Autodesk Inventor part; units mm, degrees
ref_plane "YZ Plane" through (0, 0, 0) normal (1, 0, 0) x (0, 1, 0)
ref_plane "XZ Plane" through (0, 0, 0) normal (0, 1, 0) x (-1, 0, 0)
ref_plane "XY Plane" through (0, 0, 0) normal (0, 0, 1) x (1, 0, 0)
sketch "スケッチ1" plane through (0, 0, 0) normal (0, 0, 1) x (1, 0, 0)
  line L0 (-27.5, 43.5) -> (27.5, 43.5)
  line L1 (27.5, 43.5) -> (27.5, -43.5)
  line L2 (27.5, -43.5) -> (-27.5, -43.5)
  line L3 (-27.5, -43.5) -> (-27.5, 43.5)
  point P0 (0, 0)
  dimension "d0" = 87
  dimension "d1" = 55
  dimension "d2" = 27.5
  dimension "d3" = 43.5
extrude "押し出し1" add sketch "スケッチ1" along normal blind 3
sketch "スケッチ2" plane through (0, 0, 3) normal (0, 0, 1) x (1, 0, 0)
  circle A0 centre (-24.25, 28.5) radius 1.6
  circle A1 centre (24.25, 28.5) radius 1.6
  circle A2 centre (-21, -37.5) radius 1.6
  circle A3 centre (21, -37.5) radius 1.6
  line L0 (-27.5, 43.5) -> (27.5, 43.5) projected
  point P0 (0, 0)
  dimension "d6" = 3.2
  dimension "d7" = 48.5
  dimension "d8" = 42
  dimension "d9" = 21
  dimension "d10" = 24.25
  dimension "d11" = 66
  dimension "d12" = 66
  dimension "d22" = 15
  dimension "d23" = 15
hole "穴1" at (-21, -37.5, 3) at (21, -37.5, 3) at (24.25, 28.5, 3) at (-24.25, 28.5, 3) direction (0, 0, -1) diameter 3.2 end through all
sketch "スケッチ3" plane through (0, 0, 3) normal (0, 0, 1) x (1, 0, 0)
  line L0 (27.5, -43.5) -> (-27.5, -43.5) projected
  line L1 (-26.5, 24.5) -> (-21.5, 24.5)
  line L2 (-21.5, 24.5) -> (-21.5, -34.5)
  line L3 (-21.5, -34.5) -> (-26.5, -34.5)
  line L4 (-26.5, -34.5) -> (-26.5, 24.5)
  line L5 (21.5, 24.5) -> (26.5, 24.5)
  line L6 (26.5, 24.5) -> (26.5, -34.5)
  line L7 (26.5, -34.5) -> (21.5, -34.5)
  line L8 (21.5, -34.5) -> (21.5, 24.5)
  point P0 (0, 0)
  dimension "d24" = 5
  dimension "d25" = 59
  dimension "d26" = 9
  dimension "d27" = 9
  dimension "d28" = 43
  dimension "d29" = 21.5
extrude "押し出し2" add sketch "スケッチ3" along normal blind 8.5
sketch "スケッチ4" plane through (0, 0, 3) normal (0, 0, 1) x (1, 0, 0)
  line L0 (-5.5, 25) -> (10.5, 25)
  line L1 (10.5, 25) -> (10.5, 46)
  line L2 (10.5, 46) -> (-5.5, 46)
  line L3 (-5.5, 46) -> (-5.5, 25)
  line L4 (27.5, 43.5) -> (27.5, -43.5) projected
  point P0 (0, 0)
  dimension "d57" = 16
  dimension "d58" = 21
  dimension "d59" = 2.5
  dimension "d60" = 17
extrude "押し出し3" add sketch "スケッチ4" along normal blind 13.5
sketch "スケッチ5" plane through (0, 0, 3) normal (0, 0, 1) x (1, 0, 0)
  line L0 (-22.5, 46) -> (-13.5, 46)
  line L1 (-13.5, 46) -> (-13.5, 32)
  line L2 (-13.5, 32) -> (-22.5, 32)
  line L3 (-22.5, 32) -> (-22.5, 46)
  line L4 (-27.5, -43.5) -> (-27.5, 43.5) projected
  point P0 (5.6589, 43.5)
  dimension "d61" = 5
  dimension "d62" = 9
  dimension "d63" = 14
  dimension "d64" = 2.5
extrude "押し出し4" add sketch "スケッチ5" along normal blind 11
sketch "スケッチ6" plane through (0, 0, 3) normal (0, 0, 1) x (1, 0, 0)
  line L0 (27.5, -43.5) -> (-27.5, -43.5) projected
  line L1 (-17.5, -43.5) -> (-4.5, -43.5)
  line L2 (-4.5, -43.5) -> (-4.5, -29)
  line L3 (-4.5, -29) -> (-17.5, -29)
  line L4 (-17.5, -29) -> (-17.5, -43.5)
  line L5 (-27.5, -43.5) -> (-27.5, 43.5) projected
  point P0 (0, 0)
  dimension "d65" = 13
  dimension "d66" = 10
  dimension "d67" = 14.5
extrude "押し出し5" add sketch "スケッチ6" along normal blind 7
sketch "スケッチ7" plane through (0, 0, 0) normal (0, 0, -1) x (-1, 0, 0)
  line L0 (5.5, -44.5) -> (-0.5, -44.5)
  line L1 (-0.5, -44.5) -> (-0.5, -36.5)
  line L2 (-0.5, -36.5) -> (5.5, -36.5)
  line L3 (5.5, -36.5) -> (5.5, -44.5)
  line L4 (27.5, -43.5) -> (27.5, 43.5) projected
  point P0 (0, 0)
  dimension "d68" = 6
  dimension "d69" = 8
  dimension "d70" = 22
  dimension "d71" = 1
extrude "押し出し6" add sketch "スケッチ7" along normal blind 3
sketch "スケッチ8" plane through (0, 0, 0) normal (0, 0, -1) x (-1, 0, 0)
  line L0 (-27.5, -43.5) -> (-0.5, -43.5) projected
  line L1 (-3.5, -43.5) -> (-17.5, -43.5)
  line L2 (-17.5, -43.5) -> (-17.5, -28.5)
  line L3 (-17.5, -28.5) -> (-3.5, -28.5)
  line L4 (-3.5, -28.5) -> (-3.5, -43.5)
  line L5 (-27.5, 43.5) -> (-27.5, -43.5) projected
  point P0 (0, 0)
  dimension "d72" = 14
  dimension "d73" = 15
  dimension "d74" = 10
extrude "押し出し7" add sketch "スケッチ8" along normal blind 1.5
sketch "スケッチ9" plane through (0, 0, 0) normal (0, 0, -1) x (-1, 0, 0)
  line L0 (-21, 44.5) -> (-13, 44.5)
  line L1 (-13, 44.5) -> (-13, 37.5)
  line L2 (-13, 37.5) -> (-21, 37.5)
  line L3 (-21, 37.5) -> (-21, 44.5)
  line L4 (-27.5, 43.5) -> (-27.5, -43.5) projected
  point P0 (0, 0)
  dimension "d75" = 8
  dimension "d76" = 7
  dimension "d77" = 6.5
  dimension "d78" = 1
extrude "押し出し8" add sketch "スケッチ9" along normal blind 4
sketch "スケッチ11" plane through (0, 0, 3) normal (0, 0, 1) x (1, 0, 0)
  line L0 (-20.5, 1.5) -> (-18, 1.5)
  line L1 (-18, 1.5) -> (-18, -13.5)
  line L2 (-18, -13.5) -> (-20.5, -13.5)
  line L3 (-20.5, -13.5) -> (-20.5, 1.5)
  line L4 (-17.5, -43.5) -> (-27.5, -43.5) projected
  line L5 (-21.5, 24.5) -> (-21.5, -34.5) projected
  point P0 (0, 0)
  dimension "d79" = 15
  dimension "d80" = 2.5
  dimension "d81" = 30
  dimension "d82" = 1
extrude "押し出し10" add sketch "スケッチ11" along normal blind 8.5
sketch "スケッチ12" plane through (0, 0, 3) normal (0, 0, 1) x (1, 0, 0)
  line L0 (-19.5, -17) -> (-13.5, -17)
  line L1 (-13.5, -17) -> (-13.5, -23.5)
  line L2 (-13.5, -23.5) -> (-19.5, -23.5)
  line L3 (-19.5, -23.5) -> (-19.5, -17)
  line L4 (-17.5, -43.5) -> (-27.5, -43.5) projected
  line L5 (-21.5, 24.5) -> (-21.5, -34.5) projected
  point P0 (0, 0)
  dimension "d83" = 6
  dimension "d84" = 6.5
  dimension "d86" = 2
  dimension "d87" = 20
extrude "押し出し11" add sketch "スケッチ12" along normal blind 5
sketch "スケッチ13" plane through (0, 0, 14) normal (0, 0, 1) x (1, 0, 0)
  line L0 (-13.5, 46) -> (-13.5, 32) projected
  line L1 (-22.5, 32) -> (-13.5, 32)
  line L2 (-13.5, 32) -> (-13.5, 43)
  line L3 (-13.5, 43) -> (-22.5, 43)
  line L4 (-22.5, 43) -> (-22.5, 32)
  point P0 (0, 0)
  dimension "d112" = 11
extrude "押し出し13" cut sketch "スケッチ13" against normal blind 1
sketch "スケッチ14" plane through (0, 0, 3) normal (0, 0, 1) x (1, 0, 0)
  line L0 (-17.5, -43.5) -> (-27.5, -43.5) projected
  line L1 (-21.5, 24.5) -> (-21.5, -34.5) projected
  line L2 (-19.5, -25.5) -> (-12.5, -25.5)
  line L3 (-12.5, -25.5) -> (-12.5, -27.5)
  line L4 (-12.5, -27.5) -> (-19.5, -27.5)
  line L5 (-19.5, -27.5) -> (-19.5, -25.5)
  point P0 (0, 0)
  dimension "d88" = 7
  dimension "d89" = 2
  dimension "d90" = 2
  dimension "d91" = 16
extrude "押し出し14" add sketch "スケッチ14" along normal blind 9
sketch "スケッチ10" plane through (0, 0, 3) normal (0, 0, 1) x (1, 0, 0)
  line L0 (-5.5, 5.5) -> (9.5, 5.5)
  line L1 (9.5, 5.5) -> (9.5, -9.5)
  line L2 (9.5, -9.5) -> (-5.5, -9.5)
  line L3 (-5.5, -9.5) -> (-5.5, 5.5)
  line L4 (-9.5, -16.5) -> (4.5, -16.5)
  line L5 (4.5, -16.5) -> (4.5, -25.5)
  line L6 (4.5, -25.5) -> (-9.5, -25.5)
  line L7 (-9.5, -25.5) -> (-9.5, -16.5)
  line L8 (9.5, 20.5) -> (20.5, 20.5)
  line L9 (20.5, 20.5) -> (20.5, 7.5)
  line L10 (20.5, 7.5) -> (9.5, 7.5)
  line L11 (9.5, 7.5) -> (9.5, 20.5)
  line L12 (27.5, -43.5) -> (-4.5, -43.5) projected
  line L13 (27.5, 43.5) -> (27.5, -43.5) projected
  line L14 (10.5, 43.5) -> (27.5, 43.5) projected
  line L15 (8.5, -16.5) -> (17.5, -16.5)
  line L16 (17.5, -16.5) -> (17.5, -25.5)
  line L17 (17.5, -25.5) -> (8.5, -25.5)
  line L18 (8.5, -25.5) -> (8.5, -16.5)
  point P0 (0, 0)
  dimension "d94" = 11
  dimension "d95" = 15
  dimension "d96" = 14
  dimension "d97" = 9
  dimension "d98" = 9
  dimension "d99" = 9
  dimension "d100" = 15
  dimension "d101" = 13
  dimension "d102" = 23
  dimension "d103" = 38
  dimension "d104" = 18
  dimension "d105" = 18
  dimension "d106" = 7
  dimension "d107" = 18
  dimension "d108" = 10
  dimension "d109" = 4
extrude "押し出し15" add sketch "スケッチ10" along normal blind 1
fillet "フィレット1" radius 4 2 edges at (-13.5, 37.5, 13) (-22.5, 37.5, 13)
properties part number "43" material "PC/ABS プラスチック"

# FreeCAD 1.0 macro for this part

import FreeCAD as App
import Part
import Sketcher
from FreeCAD import Vector
Q = App.Units.Quantity


def edges_at(feature, points):
    """Names of the edges that pass closest to the given points."""
    edges = feature.Shape.Edges
    near = lambda p: min(range(len(edges)), key=lambda i: edges[i].distToShape(Part.Vertex(*p))[0])
    return sorted({f"Edge{near(p) + 1}" for p in points})


def add_polygon(sketch, points):
    """Adds a closed chain of lines whose ends are joined by coincident constraints."""
    first, n = sketch.GeometryCount, len(points)
    for a, b in zip(points, points[1:] + points[:1]):
        sketch.addGeometry(Part.LineSegment(App.Vector(*a, 0), App.Vector(*b, 0)), False)
    for i in range(n):
        sketch.addConstraint(Sketcher.Constraint("Coincident", first + i, 2, first + (i + 1) % n, 1))

doc = App.newDocument("Part")
body = doc.addObject("PartDesign::Body", "Body")

sketch1 = body.newObject("Sketcher::SketchObject", "Sketch")
sketch1.AttachmentSupport = (doc.getObject("XY_Plane"), [""])
sketch1.MapMode = "FlatFace"
add_polygon(sketch1, [(28, 44), (-28, 44), (-28, -44), (28, -44)])
sketch1.addConstraint([
    Sketcher.Constraint("Horizontal", 0),
    Sketcher.Constraint("Vertical", 1),
    Sketcher.Constraint("Horizontal", 2),
    Sketcher.Constraint("Vertical", 3),
    Sketcher.Constraint("Symmetric", 0, 2, 2, 2, -1, 1),
    Sketcher.Constraint("DistanceX", 0, 2, 0, 1, Q("55 mm")),
    Sketcher.Constraint("DistanceY", 1, 2, 1, 1, Q("87 mm")),
])
pad1 = body.newObject("PartDesign::Pad", "Pad")
pad1.Profile = sketch1
pad1.Length = 3

sketch2 = body.newObject("Sketcher::SketchObject", "Sketch001")
sketch2.AttachmentSupport = (doc.getObject("XY_Plane"), [""])
sketch2.MapMode = "FlatFace"
sketch2.AttachmentOffset = App.Placement(Vector(0, 0, 3), App.Rotation())
sketch2.addGeometry([
    Part.Circle(Vector(-21, -37.5, 0), Vector(0, 0, 1), 1.6),
    Part.Circle(Vector(21, -37.5, 0), Vector(0, 0, 1), 1.6),
    Part.Circle(Vector(24.2, 28.5, 0), Vector(0, 0, 1), 1.6),
    Part.Circle(Vector(-24.2, 28.5, 0), Vector(0, 0, 1), 1.6),
], False)
sketch2.addConstraint([
    Sketcher.Constraint("Equal", 0, 1),
    Sketcher.Constraint("Equal", 1, 2),
    Sketcher.Constraint("Equal", 2, 3),
    Sketcher.Constraint("Symmetric", 0, 3, 1, 3, -2),
    Sketcher.Constraint("Symmetric", 2, 3, 3, 3, -2),
    Sketcher.Constraint("Diameter", 0, Q("3.2 mm")),
    Sketcher.Constraint("DistanceX", 0, 3, -1, 1, Q("21 mm")),
    Sketcher.Constraint("DistanceY", 1, 3, 2, 3, Q("66 mm")),
    Sketcher.Constraint("DistanceY", 0, 3, -1, 1, Q("37.5 mm")),
    Sketcher.Constraint("DistanceX", 3, 3, 2, 3, Q("48.5 mm")),
])
doc.recompute()
hole = body.newObject("PartDesign::Hole", "Hole")
hole.Profile = sketch2
hole.ThreadType = "None"
hole.Diameter = 3.2
hole.DepthType = "ThroughAll"

sketch3 = body.newObject("Sketcher::SketchObject", "Sketch002")
sketch3.AttachmentSupport = (doc.getObject("XY_Plane"), [""])
sketch3.MapMode = "FlatFace"
sketch3.AttachmentOffset = App.Placement(Vector(0, 0, 3), App.Rotation())
add_polygon(sketch3, [(-22, 24), (-26, 24), (-26, -34), (-22, -34)])
add_polygon(sketch3, [(26, 24), (22, 24), (22, -34), (26, -34)])
sketch3.addConstraint([
    Sketcher.Constraint("Horizontal", 0),
    Sketcher.Constraint("Vertical", 1),
    Sketcher.Constraint("Horizontal", 2),
    Sketcher.Constraint("Vertical", 3),
    Sketcher.Constraint("Horizontal", 4),
    Sketcher.Constraint("Vertical", 5),
    Sketcher.Constraint("Horizontal", 6),
    Sketcher.Constraint("Vertical", 7),
    Sketcher.Constraint("Symmetric", 3, 2, 4, 2, -2),
    Sketcher.Constraint("Symmetric", 1, 2, 6, 2, -2),
    Sketcher.Constraint("DistanceX", 0, 2, 0, 1, Q("5 mm")),
    Sketcher.Constraint("DistanceY", 1, 2, 1, 1, Q("59 mm")),
    Sketcher.Constraint("DistanceX", 3, 2, 4, 2, Q("43 mm")),
    Sketcher.Constraint("DistanceY", -1, 1, 0, 2, Q("24.5 mm")),
])
pad2 = body.newObject("PartDesign::Pad", "Pad001")
pad2.Profile = sketch3
pad2.Length = 8.5

sketch4 = body.newObject("Sketcher::SketchObject", "Sketch003")
sketch4.AttachmentSupport = (doc.getObject("XY_Plane"), [""])
sketch4.MapMode = "FlatFace"
sketch4.AttachmentOffset = App.Placement(Vector(0, 0, 3), App.Rotation())
add_polygon(sketch4, [(-6, 46), (-6, 25), (10, 25), (10, 46)])
sketch4.addConstraint([
    Sketcher.Constraint("Vertical", 0),
    Sketcher.Constraint("Horizontal", 1),
    Sketcher.Constraint("Vertical", 2),
    Sketcher.Constraint("Horizontal", 3),
    Sketcher.Constraint("DistanceX", 1, 1, 1, 2, Q("16 mm")),
    Sketcher.Constraint("DistanceY", 0, 2, 0, 1, Q("21 mm")),
    Sketcher.Constraint("DistanceY", -1, 1, 0, 2, Q("25 mm")),
    Sketcher.Constraint("DistanceX", 0, 2, -1, 1, Q("5.5 mm")),
])
pad3 = body.newObject("PartDesign::Pad", "Pad002")
pad3.Profile = sketch4
pad3.Length = 13.5

sketch5 = body.newObject("Sketcher::SketchObject", "Sketch004")
sketch5.AttachmentSupport = (doc.getObject("XY_Plane"), [""])
sketch5.MapMode = "FlatFace"
sketch5.AttachmentOffset = App.Placement(Vector(0, 0, 3), App.Rotation())
add_polygon(sketch5, [(-14, 46), (-22, 46), (-22, 32), (-14, 32)])
sketch5.addConstraint([
    Sketcher.Constraint("Horizontal", 0),
    Sketcher.Constraint("Vertical", 1),
    Sketcher.Constraint("Horizontal", 2),
    Sketcher.Constraint("Vertical", 3),
    Sketcher.Constraint("DistanceX", 0, 2, 0, 1, Q("9 mm")),
    Sketcher.Constraint("DistanceY", 1, 2, 1, 1, Q("14 mm")),
    Sketcher.Constraint("DistanceY", -1, 1, 0, 2, Q("46 mm")),
    Sketcher.Constraint("DistanceX", 0, 2, -1, 1, Q("22.5 mm")),
])
pad4 = body.newObject("PartDesign::Pad", "Pad003")
pad4.Profile = sketch5
pad4.Length = 11

sketch6 = body.newObject("Sketcher::SketchObject", "Sketch005")
sketch6.AttachmentSupport = (doc.getObject("XY_Plane"), [""])
sketch6.MapMode = "FlatFace"
sketch6.AttachmentOffset = App.Placement(Vector(0, 0, 3), App.Rotation())
add_polygon(sketch6, [(-18, -44), (-4, -44), (-4, -29), (-18, -29)])
sketch6.addConstraint([
    Sketcher.Constraint("Horizontal", 0),
    Sketcher.Constraint("Vertical", 1),
    Sketcher.Constraint("Horizontal", 2),
    Sketcher.Constraint("Vertical", 3),
    Sketcher.Constraint("DistanceX", 0, 1, 0, 2, Q("13 mm")),
    Sketcher.Constraint("DistanceY", 1, 1, 1, 2, Q("14.5 mm")),
    Sketcher.Constraint("DistanceY", 1, 2, -1, 1, Q("29 mm")),
    Sketcher.Constraint("DistanceX", 0, 2, -1, 1, Q("4.5 mm")),
])
pad5 = body.newObject("PartDesign::Pad", "Pad004")
pad5.Profile = sketch6
pad5.Length = 7

sketch7 = body.newObject("Sketcher::SketchObject", "Sketch006")
sketch7.AttachmentSupport = (doc.getObject("XY_Plane"), [""])
sketch7.MapMode = "FlatFace"
add_polygon(sketch7, [(0, -44), (-6, -44), (-6, -36), (0, -36)])
sketch7.addConstraint([
    Sketcher.Constraint("Horizontal", 0),
    Sketcher.Constraint("Vertical", 1),
    Sketcher.Constraint("Horizontal", 2),
    Sketcher.Constraint("Vertical", 3),
    Sketcher.Constraint("DistanceX", 0, 2, 0, 1, Q("6 mm")),
    Sketcher.Constraint("DistanceY", 1, 1, 1, 2, Q("8 mm")),
    Sketcher.Constraint("DistanceX", 0, 2, -1, 1, Q("5.5 mm")),
    Sketcher.Constraint("DistanceY", 0, 2, -1, 1, Q("44.5 mm")),
])
pad6 = body.newObject("PartDesign::Pad", "Pad005")
pad6.Profile = sketch7
pad6.Length = 3
pad6.Reversed = True

sketch8 = body.newObject("Sketcher::SketchObject", "Sketch007")
sketch8.AttachmentSupport = (doc.getObject("XY_Plane"), [""])
sketch8.MapMode = "FlatFace"
add_polygon(sketch8, [(18, -28), (18, -44), (4, -44), (4, -28)])
sketch8.addConstraint([
    Sketcher.Constraint("Vertical", 0),
    Sketcher.Constraint("Horizontal", 1),
    Sketcher.Constraint("Vertical", 2),
    Sketcher.Constraint("Horizontal", 3),
    Sketcher.Constraint("DistanceX", 1, 2, 1, 1, Q("14 mm")),
    Sketcher.Constraint("DistanceY", 0, 2, 0, 1, Q("15 mm")),
    Sketcher.Constraint("DistanceX", -1, 1, 0, 2, Q("17.5 mm")),
    Sketcher.Constraint("DistanceY", 0, 2, -1, 1, Q("43.5 mm")),
])
pad7 = body.newObject("PartDesign::Pad", "Pad006")
pad7.Profile = sketch8
pad7.Length = 1.5
pad7.Reversed = True

sketch9 = body.newObject("Sketcher::SketchObject", "Sketch008")
sketch9.AttachmentSupport = (doc.getObject("XY_Plane"), [""])
sketch9.MapMode = "FlatFace"
add_polygon(sketch9, [(13, 44), (21, 44), (21, 38), (13, 38)])
sketch9.addConstraint([
    Sketcher.Constraint("Horizontal", 0),
    Sketcher.Constraint("Vertical", 1),
    Sketcher.Constraint("Horizontal", 2),
    Sketcher.Constraint("Vertical", 3),
    Sketcher.Constraint("DistanceX", 0, 1, 0, 2, Q("8 mm")),
    Sketcher.Constraint("DistanceY", 1, 2, 1, 1, Q("7 mm")),
    Sketcher.Constraint("DistanceX", -1, 1, 0, 2, Q("21 mm")),
    Sketcher.Constraint("DistanceY", -1, 1, 0, 2, Q("44.5 mm")),
])
pad8 = body.newObject("PartDesign::Pad", "Pad007")
pad8.Profile = sketch9
pad8.Length = 4
pad8.Reversed = True

sketch10 = body.newObject("Sketcher::SketchObject", "Sketch009")
sketch10.AttachmentSupport = (doc.getObject("XY_Plane"), [""])
sketch10.MapMode = "FlatFace"
sketch10.AttachmentOffset = App.Placement(Vector(0, 0, 3), App.Rotation())
add_polygon(sketch10, [(-18, 1.5), (-20.5, 1.5), (-20.5, -13.5), (-18, -13.5)])
sketch10.addConstraint([
    Sketcher.Constraint("Horizontal", 0),
    Sketcher.Constraint("Vertical", 1),
    Sketcher.Constraint("Horizontal", 2),
    Sketcher.Constraint("Vertical", 3),
    Sketcher.Constraint("DistanceY", 1, 2, 1, 1, Q("15 mm")),
    Sketcher.Constraint("DistanceX", 0, 2, 0, 1, Q("2.5 mm")),
    Sketcher.Constraint("DistanceX", 2, 2, -1, 1, Q("18 mm")),
    Sketcher.Constraint("DistanceY", -1, 1, 0, 2, Q("1.5 mm")),
])
pad9 = body.newObject("PartDesign::Pad", "Pad008")
pad9.Profile = sketch10
pad9.Length = 8.5

sketch11 = body.newObject("Sketcher::SketchObject", "Sketch010")
sketch11.AttachmentSupport = (doc.getObject("XY_Plane"), [""])
sketch11.MapMode = "FlatFace"
sketch11.AttachmentOffset = App.Placement(Vector(0, 0, 3), App.Rotation())
add_polygon(sketch11, [(-14, -17), (-20, -17), (-20, -24), (-14, -24)])
sketch11.addConstraint([
    Sketcher.Constraint("Horizontal", 0),
    Sketcher.Constraint("Vertical", 1),
    Sketcher.Constraint("Horizontal", 2),
    Sketcher.Constraint("Vertical", 3),
    Sketcher.Constraint("DistanceX", 0, 2, 0, 1, Q("6 mm")),
    Sketcher.Constraint("DistanceY", 1, 2, 1, 1, Q("6.5 mm")),
    Sketcher.Constraint("DistanceY", 0, 2, -1, 1, Q("17 mm")),
    Sketcher.Constraint("DistanceX", 0, 2, -1, 1, Q("19.5 mm")),
])
pad10 = body.newObject("PartDesign::Pad", "Pad009")
pad10.Profile = sketch11
pad10.Length = 5

sketch12 = body.newObject("Sketcher::SketchObject", "Sketch011")
sketch12.AttachmentSupport = (doc.getObject("XY_Plane"), [""])
sketch12.MapMode = "FlatFace"
sketch12.AttachmentOffset = App.Placement(Vector(0, 0, 14), App.Rotation())
add_polygon(sketch12, [(-14, 32), (-14, 43), (-22, 43), (-22, 32)])
sketch12.addConstraint([
    Sketcher.Constraint("Vertical", 0),
    Sketcher.Constraint("Horizontal", 1),
    Sketcher.Constraint("Vertical", 2),
    Sketcher.Constraint("Horizontal", 3),
    Sketcher.Constraint("DistanceY", 0, 1, 0, 2, Q("11 mm")),
    Sketcher.Constraint("DistanceX", 1, 2, 1, 1, Q("9 mm")),
    Sketcher.Constraint("DistanceY", -1, 1, 0, 2, Q("43 mm")),
    Sketcher.Constraint("DistanceX", 0, 2, -1, 1, Q("13.5 mm")),
])
pocket1 = body.newObject("PartDesign::Pocket", "Pocket")
pocket1.Profile = sketch12
pocket1.Length = 1

sketch13 = body.newObject("Sketcher::SketchObject", "Sketch012")
sketch13.AttachmentSupport = (doc.getObject("XY_Plane"), [""])
sketch13.MapMode = "FlatFace"
sketch13.AttachmentOffset = App.Placement(Vector(0, 0, 3), App.Rotation())
add_polygon(sketch13, [(-12.5, -25.5), (-19.5, -25.5), (-19.5, -27.5), (-12.5, -27.5)])
sketch13.addConstraint([
    Sketcher.Constraint("Horizontal", 0),
    Sketcher.Constraint("Vertical", 1),
    Sketcher.Constraint("Horizontal", 2),
    Sketcher.Constraint("Vertical", 3),
    Sketcher.Constraint("DistanceX", 0, 2, 0, 1, Q("7 mm")),
    Sketcher.Constraint("DistanceY", 1, 2, 1, 1, Q("2 mm")),
    Sketcher.Constraint("DistanceX", 0, 2, -1, 1, Q("19.5 mm")),
    Sketcher.Constraint("DistanceY", 0, 2, -1, 1, Q("25.5 mm")),
])
pad11 = body.newObject("PartDesign::Pad", "Pad010")
pad11.Profile = sketch13
pad11.Length = 9

sketch14 = body.newObject("Sketcher::SketchObject", "Sketch013")
sketch14.AttachmentSupport = (doc.getObject("XY_Plane"), [""])
sketch14.MapMode = "FlatFace"
sketch14.AttachmentOffset = App.Placement(Vector(0, 0, 3), App.Rotation())
add_polygon(sketch14, [(10, 6), (-6, 6), (-6, -10), (10, -10)])
add_polygon(sketch14, [(4, -16), (-10, -16), (-10, -26), (4, -26)])
add_polygon(sketch14, [(20, 20), (10, 20), (10, 8), (20, 8)])
add_polygon(sketch14, [(18, -16), (8, -16), (8, -26), (18, -26)])
sketch14.addConstraint([
    Sketcher.Constraint("Horizontal", 0),
    Sketcher.Constraint("Vertical", 1),
    Sketcher.Constraint("Horizontal", 2),
    Sketcher.Constraint("Vertical", 3),
    Sketcher.Constraint("Horizontal", 4),
    Sketcher.Constraint("Vertical", 5),
    Sketcher.Constraint("Horizontal", 6),
    Sketcher.Constraint("Vertical", 7),
    Sketcher.Constraint("Horizontal", 8),
    Sketcher.Constraint("Vertical", 9),
    Sketcher.Constraint("Horizontal", 10),
    Sketcher.Constraint("Vertical", 11),
    Sketcher.Constraint("Horizontal", 12),
    Sketcher.Constraint("Vertical", 13),
    Sketcher.Constraint("Horizontal", 14),
    Sketcher.Constraint("Vertical", 15),
    Sketcher.Constraint("Horizontal", 7, 2, 12, 2),
    Sketcher.Constraint("Horizontal", 6, 2, 13, 2),
    Sketcher.Constraint("Vertical", 3, 2, 8, 2),
    Sketcher.Constraint("Equal", 2, 1),
    Sketcher.Constraint("Equal", 14, 5),
    Sketcher.Constraint("DistanceX", 0, 2, 0, 1, Q("15 mm")),
    Sketcher.Constraint("DistanceX", 4, 2, 4, 1, Q("14 mm")),
    Sketcher.Constraint("DistanceX", 8, 2, 8, 1, Q("11 mm")),
    Sketcher.Constraint("DistanceX", 12, 2, 12, 1, Q("9 mm")),
    Sketcher.Constraint("DistanceY", 9, 2, 9, 1, Q("13 mm")),
    Sketcher.Constraint("DistanceX", 4, 2, 1, 2, Q("4 mm")),
    Sketcher.Constraint("DistanceY", 4, 2, 1, 2, Q("7 mm")),
    Sketcher.Constraint("DistanceY", 3, 2, 8, 2, Q("15 mm")),
    Sketcher.Constraint("DistanceX", 7, 2, 12, 2, Q("4 mm")),
    Sketcher.Constraint("DistanceX", 0, 2, -1, 1, Q("5.5 mm")),
    Sketcher.Constraint("DistanceY", -1, 1, 0, 2, Q("5.5 mm")),
])
pad12 = body.newObject("PartDesign::Pad", "Pad011")
pad12.Profile = sketch14
pad12.Length = 1
doc.recompute()

fillet = body.newObject("PartDesign::Fillet", "Fillet")
fillet.Base = (pad12, edges_at(pad12, [(-13.5, 37.5, 13), (-22.5, 37.5, 13)]))
fillet.Radius = 4

doc.recompute()
